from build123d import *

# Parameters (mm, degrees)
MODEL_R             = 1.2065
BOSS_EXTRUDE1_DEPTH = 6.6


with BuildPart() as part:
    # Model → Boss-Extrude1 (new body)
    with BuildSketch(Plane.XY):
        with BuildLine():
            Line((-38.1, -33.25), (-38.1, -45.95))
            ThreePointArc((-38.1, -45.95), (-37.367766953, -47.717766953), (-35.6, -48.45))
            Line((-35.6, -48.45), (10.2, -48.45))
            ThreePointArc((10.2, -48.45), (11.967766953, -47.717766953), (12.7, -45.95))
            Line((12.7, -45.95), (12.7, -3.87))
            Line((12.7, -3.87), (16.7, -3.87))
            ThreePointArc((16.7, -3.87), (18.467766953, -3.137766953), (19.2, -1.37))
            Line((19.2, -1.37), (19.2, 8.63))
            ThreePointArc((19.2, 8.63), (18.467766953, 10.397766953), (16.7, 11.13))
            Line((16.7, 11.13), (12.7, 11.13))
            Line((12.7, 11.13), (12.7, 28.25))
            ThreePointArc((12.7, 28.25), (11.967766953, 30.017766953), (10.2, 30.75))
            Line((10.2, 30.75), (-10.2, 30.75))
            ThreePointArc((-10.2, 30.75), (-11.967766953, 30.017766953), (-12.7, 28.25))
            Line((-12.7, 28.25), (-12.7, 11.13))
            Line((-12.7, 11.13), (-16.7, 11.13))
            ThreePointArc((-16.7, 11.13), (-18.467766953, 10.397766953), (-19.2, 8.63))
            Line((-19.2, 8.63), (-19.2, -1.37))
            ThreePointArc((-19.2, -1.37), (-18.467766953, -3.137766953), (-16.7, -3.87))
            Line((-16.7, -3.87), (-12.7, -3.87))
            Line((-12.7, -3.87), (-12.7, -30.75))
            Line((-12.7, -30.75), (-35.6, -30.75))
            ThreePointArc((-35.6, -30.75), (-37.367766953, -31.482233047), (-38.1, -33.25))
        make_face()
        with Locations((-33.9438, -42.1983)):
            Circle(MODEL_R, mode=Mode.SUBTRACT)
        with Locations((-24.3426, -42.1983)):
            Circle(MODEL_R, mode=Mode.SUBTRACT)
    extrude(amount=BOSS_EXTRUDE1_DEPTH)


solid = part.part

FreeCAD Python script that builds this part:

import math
import FreeCAD as App
import Part
import Sketcher
from FreeCAD import Vector
Q = App.Units.Quantity

doc = App.newDocument("Part")
body = doc.addObject("PartDesign::Body", "Body")

# Sketch on XY plane
sketch1 = body.newObject("Sketcher::SketchObject", "Sketch")
sketch1.AttachmentSupport = (doc.getObject("XY_Plane"), [""])
sketch1.MapMode = "FlatFace"
sketch1.addGeometry(Part.LineSegment(Vector(-38.1, -33.25, 0), Vector(-38.1, -45.95, 0)), False)
sketch1.addGeometry(Part.ArcOfCircle(Part.Circle(Vector(-35.6, -45.95, 0), Vector(0, 0, 1), 2.5), math.radians(180), math.radians(270)), False)
sketch1.addGeometry(Part.LineSegment(Vector(-35.6, -48.45, 0), Vector(10.2, -48.45, 0)), False)
sketch1.addGeometry(Part.ArcOfCircle(Part.Circle(Vector(10.2, -45.95, 0), Vector(0, 0, 1), 2.5), math.radians(-90), math.radians(0)), False)
sketch1.addGeometry(Part.LineSegment(Vector(12.7, -45.95, 0), Vector(12.7, -3.87, 0)), False)
sketch1.addGeometry(Part.LineSegment(Vector(12.7, -3.87, 0), Vector(16.7, -3.87, 0)), False)
sketch1.addGeometry(Part.ArcOfCircle(Part.Circle(Vector(16.7, -1.37, 0), Vector(0, 0, 1), 2.5), math.radians(-90), math.radians(0)), False)
sketch1.addGeometry(Part.LineSegment(Vector(19.2, -1.37, 0), Vector(19.2, 8.63, 0)), False)
sketch1.addGeometry(Part.ArcOfCircle(Part.Circle(Vector(16.7, 8.63, 0), Vector(0, 0, 1), 2.5), math.radians(0), math.radians(90)), False)
sketch1.addGeometry(Part.LineSegment(Vector(16.7, 11.13, 0), Vector(12.7, 11.13, 0)), False)
sketch1.addGeometry(Part.LineSegment(Vector(12.7, 11.13, 0), Vector(12.7, 28.25, 0)), False)
sketch1.addGeometry(Part.ArcOfCircle(Part.Circle(Vector(10.2, 28.25, 0), Vector(0, 0, 1), 2.5), math.radians(0), math.radians(90)), False)
sketch1.addGeometry(Part.LineSegment(Vector(10.2, 30.75, 0), Vector(-10.2, 30.75, 0)), False)
sketch1.addGeometry(Part.ArcOfCircle(Part.Circle(Vector(-10.2, 28.25, 0), Vector(0, 0, 1), 2.5), math.radians(90), math.radians(180)), False)
sketch1.addGeometry(Part.LineSegment(Vector(-12.7, 28.25, 0), Vector(-12.7, 11.13, 0)), False)
sketch1.addGeometry(Part.LineSegment(Vector(-12.7, 11.13, 0), Vector(-16.7, 11.13, 0)), False)
sketch1.addGeometry(Part.ArcOfCircle(Part.Circle(Vector(-16.7, 8.63, 0), Vector(0, 0, 1), 2.5), math.radians(90), math.radians(180)), False)
sketch1.addGeometry(Part.LineSegment(Vector(-19.2, 8.63, 0), Vector(-19.2, -1.37, 0)), False)
sketch1.addGeometry(Part.ArcOfCircle(Part.Circle(Vector(-16.7, -1.37, 0), Vector(0, 0, 1), 2.5), math.radians(180), math.radians(270)), False)
sketch1.addGeometry(Part.LineSegment(Vector(-16.7, -3.87, 0), Vector(-12.7, -3.87, 0)), False)
sketch1.addGeometry(Part.LineSegment(Vector(-12.7, -3.87, 0), Vector(-12.7, -30.75, 0)), False)
sketch1.addGeometry(Part.LineSegment(Vector(-12.7, -30.75, 0), Vector(-35.6, -30.75, 0)), False)
sketch1.addGeometry(Part.ArcOfCircle(Part.Circle(Vector(-35.6, -33.25, 0), Vector(0, 0, 1), 2.5), math.radians(90), math.radians(180)), False)
sketch1.addGeometry(Part.Circle(Vector(-33.9438, -42.1983, 0), Vector(0, 0, 1), 1.2065), False)
sketch1.addGeometry(Part.Circle(Vector(-24.3426, -42.1983, 0), Vector(0, 0, 1), 1.2065), False)
sketch1.addConstraint(Sketcher.Constraint("Tangent", 0, 2, 1, 1))
sketch1.addConstraint(Sketcher.Constraint("Tangent", 1, 2, 2, 1))
sketch1.addConstraint(Sketcher.Constraint("Tangent", 2, 2, 3, 1))
sketch1.addConstraint(Sketcher.Constraint("Tangent", 3, 2, 4, 1))
sketch1.addConstraint(Sketcher.Constraint("Coincident", 4, 2, 5, 1))
sketch1.addConstraint(Sketcher.Constraint("Tangent", 5, 2, 6, 1))
sketch1.addConstraint(Sketcher.Constraint("Tangent", 6, 2, 7, 1))
sketch1.addConstraint(Sketcher.Constraint("Tangent", 7, 2, 8, 1))
sketch1.addConstraint(Sketcher.Constraint("Tangent", 8, 2, 9, 1))
sketch1.addConstraint(Sketcher.Constraint("Coincident", 9, 2, 10, 1))
sketch1.addConstraint(Sketcher.Constraint("Tangent", 10, 2, 11, 1))
sketch1.addConstraint(Sketcher.Constraint("Tangent", 11, 2, 12, 1))
sketch1.addConstraint(Sketcher.Constraint("Tangent", 12, 2, 13, 1))
sketch1.addConstraint(Sketcher.Constraint("Tangent", 13, 2, 14, 1))
sketch1.addConstraint(Sketcher.Constraint("Coincident", 14, 2, 15, 1))
sketch1.addConstraint(Sketcher.Constraint("Tangent", 15, 2, 16, 1))
sketch1.addConstraint(Sketcher.Constraint("Tangent", 16, 2, 17, 1))
sketch1.addConstraint(Sketcher.Constraint("Tangent", 17, 2, 18, 1))
sketch1.addConstraint(Sketcher.Constraint("Tangent", 18, 2, 19, 1))
sketch1.addConstraint(Sketcher.Constraint("Coincident", 19, 2, 20, 1))
sketch1.addConstraint(Sketcher.Constraint("Coincident", 20, 2, 21, 1))
sketch1.addConstraint(Sketcher.Constraint("Tangent", 21, 2, 22, 1))
sketch1.addConstraint(Sketcher.Constraint("Tangent", 22, 2, 0, 1))
sketch1.addConstraint(Sketcher.Constraint("Vertical", 0))
sketch1.addConstraint(Sketcher.Constraint("Horizontal", 2))
sketch1.addConstraint(Sketcher.Constraint("Vertical", 4))
sketch1.addConstraint(Sketcher.Constraint("Horizontal", 5))
sketch1.addConstraint(Sketcher.Constraint("Vertical", 7))
sketch1.addConstraint(Sketcher.Constraint("Horizontal", 9))
sketch1.addConstraint(Sketcher.Constraint("Vertical", 10))
sketch1.addConstraint(Sketcher.Constraint("Horizontal", 12))
sketch1.addConstraint(Sketcher.Constraint("Vertical", 14))
sketch1.addConstraint(Sketcher.Constraint("Horizontal", 15))
sketch1.addConstraint(Sketcher.Constraint("Vertical", 17))
sketch1.addConstraint(Sketcher.Constraint("Horizontal", 19))
sketch1.addConstraint(Sketcher.Constraint("Vertical", 20))
sketch1.addConstraint(Sketcher.Constraint("Horizontal", 21))
sketch1.addConstraint(Sketcher.Constraint("Equal", 1, 3))
sketch1.addConstraint(Sketcher.Constraint("Equal", 3, 6))
sketch1.addConstraint(Sketcher.Constraint("Equal", 6, 8))
sketch1.addConstraint(Sketcher.Constraint("Equal", 8, 11))
sketch1.addConstraint(Sketcher.Constraint("Equal", 11, 13))
sketch1.addConstraint(Sketcher.Constraint("Equal", 13, 16))
sketch1.addConstraint(Sketcher.Constraint("Equal", 16, 18))
sketch1.addConstraint(Sketcher.Constraint("Equal", 18, 22))
sketch1.addConstraint(Sketcher.Constraint("Equal", 23, 24))
sketch1.addConstraint(Sketcher.Constraint("Symmetric", 8, 3, 16, 3, -2))
sketch1.addConstraint(Sketcher.Constraint("Symmetric", 4, 2, 19, 2, -2))
sketch1.addConstraint(Sketcher.Constraint("Horizontal", 23, 3, 24, 3))
sketch1.addConstraint(Sketcher.Constraint("Vertical", 3, 3, 11, 3))
sketch1.addConstraint(Sketcher.Constraint("Vertical", 14, 2, 19, 2))
sketch1.addConstraint(Sketcher.Constraint("Radius", 1, Q("2.5 mm")))
sketch1.addConstraint(Sketcher.Constraint("DistanceX", 5, 1, 5, 2, Q("4 mm")))
sketch1.addConstraint(Sketcher.Constraint("DistanceY", 7, 1, 7, 2, Q("10 mm")))
sketch1.addConstraint(Sketcher.Constraint("Diameter", 23, Q("2.413 mm")))
sketch1.addConstraint(Sketcher.Constraint("DistanceX", 2, 1, 2, 2, Q("45.8 mm")))
sketch1.addConstraint(Sketcher.Constraint("DistanceX", 12, 2, 12, 1, Q("20.4 mm")))
sketch1.addConstraint(Sketcher.Constraint("DistanceY", 0, 2, 0, 1, Q("12.7 mm")))
sketch1.addConstraint(Sketcher.Constraint("DistanceY", 4, 1, 4, 2, Q("42.08 mm")))
sketch1.addConstraint(Sketcher.Constraint("DistanceY", 10, 1, 10, 2, Q("17.12 mm")))
sketch1.addConstraint(Sketcher.Constraint("DistanceY", 1, 3, -1, 1, Q("45.95 mm")))
sketch1.addConstraint(Sketcher.Constraint("DistanceX", 23, 3, -1, 1, Q("33.9438 mm")))
sketch1.addConstraint(Sketcher.Constraint("DistanceY", 23, 3, -1, 1, Q("42.1983 mm")))
sketch1.addConstraint(Sketcher.Constraint("DistanceX", 24, 3, -1, 1, Q("24.3426 mm")))
pad1 = body.newObject("PartDesign::Pad", "Pad")
pad1.Profile = sketch1
pad1.Length = 6.6

doc.recompute()
